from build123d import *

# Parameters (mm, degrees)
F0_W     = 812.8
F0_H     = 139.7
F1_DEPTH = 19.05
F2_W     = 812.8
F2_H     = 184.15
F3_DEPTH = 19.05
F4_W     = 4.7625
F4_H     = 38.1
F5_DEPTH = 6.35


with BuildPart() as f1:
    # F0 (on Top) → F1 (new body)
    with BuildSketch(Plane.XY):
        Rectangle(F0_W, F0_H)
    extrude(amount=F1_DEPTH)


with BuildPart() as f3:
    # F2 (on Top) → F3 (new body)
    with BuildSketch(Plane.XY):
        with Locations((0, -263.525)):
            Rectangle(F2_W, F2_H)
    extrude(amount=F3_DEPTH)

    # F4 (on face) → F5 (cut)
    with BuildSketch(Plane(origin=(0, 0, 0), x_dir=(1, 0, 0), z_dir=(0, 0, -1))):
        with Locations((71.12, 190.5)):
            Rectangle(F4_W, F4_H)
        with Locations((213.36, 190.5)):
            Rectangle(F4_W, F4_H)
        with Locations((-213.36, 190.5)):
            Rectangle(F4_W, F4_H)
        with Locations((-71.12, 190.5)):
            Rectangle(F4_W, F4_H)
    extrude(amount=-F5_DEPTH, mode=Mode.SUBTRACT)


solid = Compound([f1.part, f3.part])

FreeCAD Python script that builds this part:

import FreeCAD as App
import Part
import Sketcher
from FreeCAD import Vector
Q = App.Units.Quantity


def add_polygon(sketch, points):
    """Adds a closed chain of lines whose ends are joined by coincident constraints."""
    first, n = sketch.GeometryCount, len(points)
    for a, b in zip(points, points[1:] + points[:1]):
        sketch.addGeometry(Part.LineSegment(App.Vector(*a, 0), App.Vector(*b, 0)), False)
    for i in range(n):
        sketch.addConstraint(Sketcher.Constraint("Coincident", first + i, 2, first + (i + 1) % n, 1))

doc = App.newDocument("Part")
body = doc.addObject("PartDesign::Body", "Body")

# Sketch on XY plane
sketch1 = body.newObject("Sketcher::SketchObject", "Sketch")
sketch1.AttachmentSupport = (doc.getObject("XY_Plane"), [""])
sketch1.MapMode = "FlatFace"
add_polygon(sketch1, [(-406, 70), (-406, -70), (406, -70), (406, 70)])  # lines 0-3
sketch1.addConstraint(Sketcher.Constraint("Vertical", 0))
sketch1.addConstraint(Sketcher.Constraint("Horizontal", 1))
sketch1.addConstraint(Sketcher.Constraint("Vertical", 2))
sketch1.addConstraint(Sketcher.Constraint("Horizontal", 3))
sketch1.addConstraint(Sketcher.Constraint("Symmetric", 0, 2, 2, 2, -1, 1))
sketch1.addConstraint(Sketcher.Constraint("DistanceX", 1, 1, 1, 2, Q("32 in")))
sketch1.addConstraint(Sketcher.Constraint("DistanceY", 0, 2, 0, 1, Q("5.5 in")))
pad1 = body.newObject("PartDesign::Pad", "Pad")
pad1.Profile = sketch1
pad1.Length = Q("0.75 in")
body2 = doc.addObject("PartDesign::Body", "Body001")

# Sketch on XY plane
sketch2 = body2.newObject("Sketcher::SketchObject", "Sketch001")
sketch2.AttachmentSupport = (doc.getObject("XY_Plane001"), [""])
sketch2.MapMode = "FlatFace"
add_polygon(sketch2, [(-406, -171), (-406, -356), (406, -356), (406, -171)])  # lines 0-3
sketch2.addConstraint(Sketcher.Constraint("Vertical", 0))
sketch2.addConstraint(Sketcher.Constraint("Horizontal", 1))
sketch2.addConstraint(Sketcher.Constraint("Vertical", 2))
sketch2.addConstraint(Sketcher.Constraint("Horizontal", 3))
sketch2.addConstraint(Sketcher.Constraint("DistanceX", 1, 1, 1, 2, Q("32 in")))
sketch2.addConstraint(Sketcher.Constraint("DistanceX", 0, 2, -1, 1, Q("16 in")))
sketch2.addConstraint(Sketcher.Constraint("DistanceY", 0, 2, -1, 1, Q("14 in")))
sketch2.addConstraint(Sketcher.Constraint("DistanceY", 0, 2, 0, 1, Q("7.25 in")))
pad2 = body2.newObject("PartDesign::Pad", "Pad001")
pad2.Profile = sketch2
pad2.Length = Q("0.75 in")

# Sketch on XY plane
sketch3 = body2.newObject("Sketcher::SketchObject", "Sketch002")
sketch3.AttachmentSupport = (doc.getObject("XY_Plane001"), [""])
sketch3.MapMode = "FlatFace"
add_polygon(sketch3, [(68.7, -209.6), (68.7, -171.4), (73.5, -171.4), (73.5, -209.6)])  # lines 0-3
add_polygon(sketch3, [(211, -209.6), (211, -171.4), (215.7, -171.4), (215.7, -209.6)])  # lines 4-7
add_polygon(sketch3, [(-215.7, -209.6), (-215.7, -171.4), (-211, -171.4), (-211, -209.6)])  # lines 8-11
add_polygon(sketch3, [(-73.5, -209.6), (-73.5, -171.4), (-68.7, -171.4), (-68.7, -209.6)])  # lines 12-15
sketch3.addConstraint(Sketcher.Constraint("Vertical", 0))
sketch3.addConstraint(Sketcher.Constraint("Horizontal", 1))
sketch3.addConstraint(Sketcher.Constraint("Vertical", 2))
sketch3.addConstraint(Sketcher.Constraint("Horizontal", 3))
sketch3.addConstraint(Sketcher.Constraint("Vertical", 4))
sketch3.addConstraint(Sketcher.Constraint("Horizontal", 5))
sketch3.addConstraint(Sketcher.Constraint("Vertical", 6))
sketch3.addConstraint(Sketcher.Constraint("Horizontal", 7))
sketch3.addConstraint(Sketcher.Constraint("Vertical", 8))
sketch3.addConstraint(Sketcher.Constraint("Horizontal", 9))
sketch3.addConstraint(Sketcher.Constraint("Vertical", 10))
sketch3.addConstraint(Sketcher.Constraint("Horizontal", 11))
sketch3.addConstraint(Sketcher.Constraint("Vertical", 12))
sketch3.addConstraint(Sketcher.Constraint("Horizontal", 13))
sketch3.addConstraint(Sketcher.Constraint("Vertical", 14))
sketch3.addConstraint(Sketcher.Constraint("Horizontal", 15))
sketch3.addConstraint(Sketcher.Constraint("Symmetric", 5, 2, 8, 2, -2))
sketch3.addConstraint(Sketcher.Constraint("Symmetric", 7, 2, 10, 2, -2))
sketch3.addConstraint(Sketcher.Constraint("Symmetric", 1, 2, 12, 2, -2))
sketch3.addConstraint(Sketcher.Constraint("Symmetric", 3, 2, 14, 2, -2))
sketch3.addConstraint(Sketcher.Constraint("Horizontal", 1, 2, 4, 2))
sketch3.addConstraint(Sketcher.Constraint("Horizontal", 3, 2, 6, 2))
sketch3.addConstraint(Sketcher.Constraint("Equal", 3, 5))
sketch3.addConstraint(Sketcher.Constraint("DistanceY", 0, 1, 0, 2, Q("1.5 in")))
sketch3.addConstraint(Sketcher.Constraint("DistanceX", 0, 2, 4, 2, Q("5.6 in")))
sketch3.addConstraint(Sketcher.Constraint("DistanceX", 8, 2, 0, 2, Q("11.2 in")))
sketch3.addConstraint(Sketcher.Constraint("DistanceX", 1, 1, 1, 2, Q("0.1875 in")))
sketch3.addConstraint(Sketcher.Constraint("DistanceY", 0, 2, -1, 1, Q("6.75 in")))
pocket1 = body2.newObject("PartDesign::Pocket", "Pocket")
pocket1.Profile = sketch3
pocket1.Length = Q("0.25 in")
pocket1.Reversed = True

doc.recompute()
